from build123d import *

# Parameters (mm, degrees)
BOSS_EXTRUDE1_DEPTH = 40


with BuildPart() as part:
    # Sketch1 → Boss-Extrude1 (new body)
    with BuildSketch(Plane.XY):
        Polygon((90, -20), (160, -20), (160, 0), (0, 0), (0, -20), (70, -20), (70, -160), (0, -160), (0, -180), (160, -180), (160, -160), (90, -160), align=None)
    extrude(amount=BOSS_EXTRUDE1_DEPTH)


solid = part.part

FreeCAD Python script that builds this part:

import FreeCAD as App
import Part
import Sketcher
from FreeCAD import Vector


def add_polygon(sketch, points):
    """Adds a closed chain of lines whose ends are joined by coincident constraints."""
    first, n = sketch.GeometryCount, len(points)
    for a, b in zip(points, points[1:] + points[:1]):
        sketch.addGeometry(Part.LineSegment(App.Vector(*a, 0), App.Vector(*b, 0)), False)
    for i in range(n):
        sketch.addConstraint(Sketcher.Constraint("Coincident", first + i, 2, first + (i + 1) % n, 1))

doc = App.newDocument("Part")
body = doc.addObject("PartDesign::Body", "Body")

sketch1 = doc.addObject("Sketcher::SketchObject", "Sketch")
body.addObject(sketch1)
sketch1.AttachmentSupport = (doc.XY_Plane, [""])
sketch1.MapMode = "FlatFace"
add_polygon(sketch1, [(90, -20), (160, -20), (160, 0), (0, 0), (0, -20), (70, -20), (70, -160), (0, -160), (0, -180), (160, -180), (160, -160), (90, -160)])
sketch1.addConstraint([
    Sketcher.Constraint("Horizontal", 0),
    Sketcher.Constraint("Vertical", 1),
    Sketcher.Constraint("Horizontal", 2),
    Sketcher.Constraint("Vertical", 3),
    Sketcher.Constraint("Horizontal", 4),
    Sketcher.Constraint("Vertical", 5),
    Sketcher.Constraint("Horizontal", 6),
    Sketcher.Constraint("Vertical", 7),
    Sketcher.Constraint("Horizontal", 8),
    Sketcher.Constraint("Vertical", 9),
    Sketcher.Constraint("Horizontal", 10),
    Sketcher.Constraint("Vertical", 11),
    Sketcher.Constraint("Coincident", 2, 2, -1, 1),
    Sketcher.Constraint("PointOnObject", 6, 2, -2),
    Sketcher.Constraint("Horizontal", 0, 2, 3, 2),
    Sketcher.Constraint("Horizontal", 6, 2, 9, 2),
    Sketcher.Constraint("Vertical", 1, 2, 8, 2),
    Sketcher.Constraint("Equal", 0, 4),
    Sketcher.Constraint("Equal", 3, 7),
    Sketcher.Constraint("DistanceX", 0, 1, 0, 2, 70.0),
    Sketcher.Constraint("DistanceX", 2, 2, 2, 1, 160.0),
    Sketcher.Constraint("DistanceY", 1, 1, 1, 2, 20.0),
    Sketcher.Constraint("DistanceY", 5, 2, 5, 1, 140.0),
])
pad1 = doc.addObject("PartDesign::Pad", "Pad")
body.addObject(pad1)
pad1.Profile = sketch1
pad1.Length = 40

doc.recompute()
